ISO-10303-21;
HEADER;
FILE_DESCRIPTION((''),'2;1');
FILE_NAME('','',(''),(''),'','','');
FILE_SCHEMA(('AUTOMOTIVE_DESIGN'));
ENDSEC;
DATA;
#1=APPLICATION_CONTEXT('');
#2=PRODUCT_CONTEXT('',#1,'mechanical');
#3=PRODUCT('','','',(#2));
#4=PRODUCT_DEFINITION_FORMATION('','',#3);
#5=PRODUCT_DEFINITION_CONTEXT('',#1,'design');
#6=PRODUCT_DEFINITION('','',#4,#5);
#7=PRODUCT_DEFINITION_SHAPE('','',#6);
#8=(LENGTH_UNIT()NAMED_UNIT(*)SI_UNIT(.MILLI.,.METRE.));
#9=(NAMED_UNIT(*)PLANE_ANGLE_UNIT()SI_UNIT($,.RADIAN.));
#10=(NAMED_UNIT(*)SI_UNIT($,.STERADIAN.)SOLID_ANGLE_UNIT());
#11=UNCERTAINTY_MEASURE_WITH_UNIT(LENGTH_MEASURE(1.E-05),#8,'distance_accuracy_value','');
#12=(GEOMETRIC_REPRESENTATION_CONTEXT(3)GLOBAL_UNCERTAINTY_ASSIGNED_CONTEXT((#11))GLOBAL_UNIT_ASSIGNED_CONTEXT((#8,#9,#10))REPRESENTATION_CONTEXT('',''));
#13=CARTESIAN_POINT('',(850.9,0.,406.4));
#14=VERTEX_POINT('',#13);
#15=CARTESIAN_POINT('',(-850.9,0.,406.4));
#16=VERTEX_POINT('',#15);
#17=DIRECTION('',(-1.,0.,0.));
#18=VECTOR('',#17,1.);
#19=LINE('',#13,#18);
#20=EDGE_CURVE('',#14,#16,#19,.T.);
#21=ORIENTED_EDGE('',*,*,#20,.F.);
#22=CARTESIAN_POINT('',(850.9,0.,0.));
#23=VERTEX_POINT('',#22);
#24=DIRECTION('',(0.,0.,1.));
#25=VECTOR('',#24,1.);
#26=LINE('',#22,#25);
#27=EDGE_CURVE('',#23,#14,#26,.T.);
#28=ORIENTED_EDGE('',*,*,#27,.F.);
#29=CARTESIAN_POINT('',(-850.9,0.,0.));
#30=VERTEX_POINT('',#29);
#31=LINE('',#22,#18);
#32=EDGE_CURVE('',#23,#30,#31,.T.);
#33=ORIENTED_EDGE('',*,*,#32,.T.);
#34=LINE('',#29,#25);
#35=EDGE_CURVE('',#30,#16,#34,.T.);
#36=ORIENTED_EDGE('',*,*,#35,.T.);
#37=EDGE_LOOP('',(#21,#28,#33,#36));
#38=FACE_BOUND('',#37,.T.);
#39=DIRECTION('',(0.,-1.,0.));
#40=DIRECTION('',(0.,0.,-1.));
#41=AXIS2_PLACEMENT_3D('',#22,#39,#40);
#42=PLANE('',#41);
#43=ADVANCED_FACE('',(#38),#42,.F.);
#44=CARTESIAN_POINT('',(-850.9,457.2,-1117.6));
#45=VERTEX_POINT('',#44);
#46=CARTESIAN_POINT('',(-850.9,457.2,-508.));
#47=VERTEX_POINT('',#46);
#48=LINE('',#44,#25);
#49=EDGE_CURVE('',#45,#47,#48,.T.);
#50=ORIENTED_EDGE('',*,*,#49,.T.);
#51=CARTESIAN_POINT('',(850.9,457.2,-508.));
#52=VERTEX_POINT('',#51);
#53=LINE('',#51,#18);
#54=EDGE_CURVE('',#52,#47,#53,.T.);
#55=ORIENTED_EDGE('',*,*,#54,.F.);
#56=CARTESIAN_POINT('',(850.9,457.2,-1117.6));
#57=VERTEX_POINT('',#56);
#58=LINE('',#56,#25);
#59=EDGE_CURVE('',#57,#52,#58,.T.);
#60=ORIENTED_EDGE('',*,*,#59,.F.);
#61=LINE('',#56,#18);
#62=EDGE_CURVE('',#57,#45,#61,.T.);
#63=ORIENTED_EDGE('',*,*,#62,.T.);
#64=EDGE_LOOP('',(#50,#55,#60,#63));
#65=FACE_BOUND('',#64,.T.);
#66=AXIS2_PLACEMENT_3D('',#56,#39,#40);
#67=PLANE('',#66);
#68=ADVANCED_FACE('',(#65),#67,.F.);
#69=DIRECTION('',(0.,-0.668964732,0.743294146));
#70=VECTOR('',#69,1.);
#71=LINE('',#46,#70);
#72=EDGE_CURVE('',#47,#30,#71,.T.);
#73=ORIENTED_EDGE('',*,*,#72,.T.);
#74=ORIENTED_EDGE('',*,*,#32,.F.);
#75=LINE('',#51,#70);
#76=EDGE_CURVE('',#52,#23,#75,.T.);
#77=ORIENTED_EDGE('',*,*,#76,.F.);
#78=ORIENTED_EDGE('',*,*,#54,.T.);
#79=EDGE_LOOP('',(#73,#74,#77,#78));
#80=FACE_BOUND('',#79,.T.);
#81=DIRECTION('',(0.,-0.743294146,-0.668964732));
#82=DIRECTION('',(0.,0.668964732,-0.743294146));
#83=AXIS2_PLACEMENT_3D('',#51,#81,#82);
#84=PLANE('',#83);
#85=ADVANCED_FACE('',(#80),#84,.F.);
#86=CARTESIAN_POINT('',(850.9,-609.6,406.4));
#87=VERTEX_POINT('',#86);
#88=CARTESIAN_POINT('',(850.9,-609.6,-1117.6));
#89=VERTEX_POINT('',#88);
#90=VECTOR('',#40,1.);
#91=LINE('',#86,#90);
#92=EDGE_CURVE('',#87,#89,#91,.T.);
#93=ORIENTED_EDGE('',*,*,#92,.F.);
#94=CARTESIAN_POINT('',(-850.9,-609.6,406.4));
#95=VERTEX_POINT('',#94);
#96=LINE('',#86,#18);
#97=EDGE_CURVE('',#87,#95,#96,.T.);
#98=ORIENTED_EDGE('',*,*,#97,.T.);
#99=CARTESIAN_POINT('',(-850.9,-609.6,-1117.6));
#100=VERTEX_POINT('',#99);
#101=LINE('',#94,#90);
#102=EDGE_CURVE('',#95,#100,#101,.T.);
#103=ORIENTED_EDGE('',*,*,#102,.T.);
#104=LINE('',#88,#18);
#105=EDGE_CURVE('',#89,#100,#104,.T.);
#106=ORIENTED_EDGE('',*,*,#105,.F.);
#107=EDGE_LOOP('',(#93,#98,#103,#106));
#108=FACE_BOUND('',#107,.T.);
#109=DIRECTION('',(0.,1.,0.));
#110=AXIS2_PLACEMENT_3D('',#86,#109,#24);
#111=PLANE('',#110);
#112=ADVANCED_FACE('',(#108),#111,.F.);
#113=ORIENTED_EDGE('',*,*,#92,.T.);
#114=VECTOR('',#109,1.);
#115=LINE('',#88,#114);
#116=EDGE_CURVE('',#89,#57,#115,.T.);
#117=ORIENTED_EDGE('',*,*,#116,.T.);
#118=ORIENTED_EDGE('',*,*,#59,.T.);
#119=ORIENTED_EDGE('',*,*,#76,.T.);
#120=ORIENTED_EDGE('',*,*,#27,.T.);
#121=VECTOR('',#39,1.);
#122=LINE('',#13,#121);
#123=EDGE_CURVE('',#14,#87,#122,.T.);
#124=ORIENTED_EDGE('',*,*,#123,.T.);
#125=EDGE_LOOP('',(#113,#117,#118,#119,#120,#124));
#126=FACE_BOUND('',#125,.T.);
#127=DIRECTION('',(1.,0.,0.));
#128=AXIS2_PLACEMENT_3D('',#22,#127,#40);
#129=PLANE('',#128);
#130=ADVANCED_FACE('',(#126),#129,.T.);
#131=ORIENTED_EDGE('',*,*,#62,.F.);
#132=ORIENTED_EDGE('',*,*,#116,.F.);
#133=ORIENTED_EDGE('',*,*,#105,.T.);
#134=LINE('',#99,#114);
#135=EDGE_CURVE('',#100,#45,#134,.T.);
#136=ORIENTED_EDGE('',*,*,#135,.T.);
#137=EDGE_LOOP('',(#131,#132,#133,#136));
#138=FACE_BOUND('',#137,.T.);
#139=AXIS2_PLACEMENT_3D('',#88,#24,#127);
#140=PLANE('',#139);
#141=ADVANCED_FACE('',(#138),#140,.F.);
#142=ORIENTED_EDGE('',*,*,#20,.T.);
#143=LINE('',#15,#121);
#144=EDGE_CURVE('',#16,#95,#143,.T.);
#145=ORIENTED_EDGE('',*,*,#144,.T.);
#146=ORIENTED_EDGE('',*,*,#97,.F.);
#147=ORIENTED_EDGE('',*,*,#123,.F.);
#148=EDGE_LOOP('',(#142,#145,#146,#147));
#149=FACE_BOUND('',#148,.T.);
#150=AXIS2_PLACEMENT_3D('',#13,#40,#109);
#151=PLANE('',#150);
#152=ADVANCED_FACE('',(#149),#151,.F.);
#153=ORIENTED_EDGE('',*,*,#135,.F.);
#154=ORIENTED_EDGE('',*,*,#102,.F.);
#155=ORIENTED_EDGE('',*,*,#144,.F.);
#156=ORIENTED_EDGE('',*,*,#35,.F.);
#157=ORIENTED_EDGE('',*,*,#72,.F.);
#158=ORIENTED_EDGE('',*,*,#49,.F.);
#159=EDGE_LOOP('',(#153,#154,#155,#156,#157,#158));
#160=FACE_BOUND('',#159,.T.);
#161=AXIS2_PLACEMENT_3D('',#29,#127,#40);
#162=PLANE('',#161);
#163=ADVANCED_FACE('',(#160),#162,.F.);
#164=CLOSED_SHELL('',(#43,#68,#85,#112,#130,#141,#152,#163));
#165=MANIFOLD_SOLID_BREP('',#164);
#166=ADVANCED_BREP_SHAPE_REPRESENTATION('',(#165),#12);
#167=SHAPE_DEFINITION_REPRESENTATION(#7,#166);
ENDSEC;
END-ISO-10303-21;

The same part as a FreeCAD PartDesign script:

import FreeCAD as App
import Part
import Sketcher
from FreeCAD import Vector
Q = App.Units.Quantity


def add_polygon(sketch, points):
    """Adds a closed chain of lines whose ends are joined by coincident constraints."""
    first, n = sketch.GeometryCount, len(points)
    for a, b in zip(points, points[1:] + points[:1]):
        sketch.addGeometry(Part.LineSegment(App.Vector(*a, 0), App.Vector(*b, 0)), False)
    for i in range(n):
        sketch.addConstraint(Sketcher.Constraint("Coincident", first + i, 2, first + (i + 1) % n, 1))

doc = App.newDocument("Part")
body = doc.addObject("PartDesign::Body", "Body")

# Sketch on YZ plane
sketch1 = doc.addObject("Sketcher::SketchObject", "Sketch")
body.addObject(sketch1)
sketch1.AttachmentSupport = (doc.YZ_Plane, [""])
sketch1.MapMode = "FlatFace"
add_polygon(sketch1, [(0, 0), (0, 406), (-610, 406), (-610, -1118), (457, -1118), (457, -508)])  # lines 0-5
sketch1.addConstraint([
    Sketcher.Constraint("Vertical", 0),
    Sketcher.Constraint("Horizontal", 1),
    Sketcher.Constraint("Vertical", 2),
    Sketcher.Constraint("Horizontal", 3),
    Sketcher.Constraint("Vertical", 4),
    Sketcher.Constraint("Coincident", 5, 2, -1, 1),
    Sketcher.Constraint("Equal", 1, 4),
    Sketcher.Constraint("DistanceX", 1, 2, 1, 1, Q("24 in")),
    Sketcher.Constraint("DistanceX", 3, 1, 3, 2, Q("42 in")),
    Sketcher.Constraint("DistanceY", 0, 1, 0, 2, Q("16 in")),
    Sketcher.Constraint("DistanceY", 2, 2, 2, 1, Q("60 in")),
])
pad1 = doc.addObject("PartDesign::Pad", "Pad")
body.addObject(pad1)
pad1.Profile = sketch1
pad1.Length = Q("67 in")
pad1.Midplane = True

doc.recompute()
